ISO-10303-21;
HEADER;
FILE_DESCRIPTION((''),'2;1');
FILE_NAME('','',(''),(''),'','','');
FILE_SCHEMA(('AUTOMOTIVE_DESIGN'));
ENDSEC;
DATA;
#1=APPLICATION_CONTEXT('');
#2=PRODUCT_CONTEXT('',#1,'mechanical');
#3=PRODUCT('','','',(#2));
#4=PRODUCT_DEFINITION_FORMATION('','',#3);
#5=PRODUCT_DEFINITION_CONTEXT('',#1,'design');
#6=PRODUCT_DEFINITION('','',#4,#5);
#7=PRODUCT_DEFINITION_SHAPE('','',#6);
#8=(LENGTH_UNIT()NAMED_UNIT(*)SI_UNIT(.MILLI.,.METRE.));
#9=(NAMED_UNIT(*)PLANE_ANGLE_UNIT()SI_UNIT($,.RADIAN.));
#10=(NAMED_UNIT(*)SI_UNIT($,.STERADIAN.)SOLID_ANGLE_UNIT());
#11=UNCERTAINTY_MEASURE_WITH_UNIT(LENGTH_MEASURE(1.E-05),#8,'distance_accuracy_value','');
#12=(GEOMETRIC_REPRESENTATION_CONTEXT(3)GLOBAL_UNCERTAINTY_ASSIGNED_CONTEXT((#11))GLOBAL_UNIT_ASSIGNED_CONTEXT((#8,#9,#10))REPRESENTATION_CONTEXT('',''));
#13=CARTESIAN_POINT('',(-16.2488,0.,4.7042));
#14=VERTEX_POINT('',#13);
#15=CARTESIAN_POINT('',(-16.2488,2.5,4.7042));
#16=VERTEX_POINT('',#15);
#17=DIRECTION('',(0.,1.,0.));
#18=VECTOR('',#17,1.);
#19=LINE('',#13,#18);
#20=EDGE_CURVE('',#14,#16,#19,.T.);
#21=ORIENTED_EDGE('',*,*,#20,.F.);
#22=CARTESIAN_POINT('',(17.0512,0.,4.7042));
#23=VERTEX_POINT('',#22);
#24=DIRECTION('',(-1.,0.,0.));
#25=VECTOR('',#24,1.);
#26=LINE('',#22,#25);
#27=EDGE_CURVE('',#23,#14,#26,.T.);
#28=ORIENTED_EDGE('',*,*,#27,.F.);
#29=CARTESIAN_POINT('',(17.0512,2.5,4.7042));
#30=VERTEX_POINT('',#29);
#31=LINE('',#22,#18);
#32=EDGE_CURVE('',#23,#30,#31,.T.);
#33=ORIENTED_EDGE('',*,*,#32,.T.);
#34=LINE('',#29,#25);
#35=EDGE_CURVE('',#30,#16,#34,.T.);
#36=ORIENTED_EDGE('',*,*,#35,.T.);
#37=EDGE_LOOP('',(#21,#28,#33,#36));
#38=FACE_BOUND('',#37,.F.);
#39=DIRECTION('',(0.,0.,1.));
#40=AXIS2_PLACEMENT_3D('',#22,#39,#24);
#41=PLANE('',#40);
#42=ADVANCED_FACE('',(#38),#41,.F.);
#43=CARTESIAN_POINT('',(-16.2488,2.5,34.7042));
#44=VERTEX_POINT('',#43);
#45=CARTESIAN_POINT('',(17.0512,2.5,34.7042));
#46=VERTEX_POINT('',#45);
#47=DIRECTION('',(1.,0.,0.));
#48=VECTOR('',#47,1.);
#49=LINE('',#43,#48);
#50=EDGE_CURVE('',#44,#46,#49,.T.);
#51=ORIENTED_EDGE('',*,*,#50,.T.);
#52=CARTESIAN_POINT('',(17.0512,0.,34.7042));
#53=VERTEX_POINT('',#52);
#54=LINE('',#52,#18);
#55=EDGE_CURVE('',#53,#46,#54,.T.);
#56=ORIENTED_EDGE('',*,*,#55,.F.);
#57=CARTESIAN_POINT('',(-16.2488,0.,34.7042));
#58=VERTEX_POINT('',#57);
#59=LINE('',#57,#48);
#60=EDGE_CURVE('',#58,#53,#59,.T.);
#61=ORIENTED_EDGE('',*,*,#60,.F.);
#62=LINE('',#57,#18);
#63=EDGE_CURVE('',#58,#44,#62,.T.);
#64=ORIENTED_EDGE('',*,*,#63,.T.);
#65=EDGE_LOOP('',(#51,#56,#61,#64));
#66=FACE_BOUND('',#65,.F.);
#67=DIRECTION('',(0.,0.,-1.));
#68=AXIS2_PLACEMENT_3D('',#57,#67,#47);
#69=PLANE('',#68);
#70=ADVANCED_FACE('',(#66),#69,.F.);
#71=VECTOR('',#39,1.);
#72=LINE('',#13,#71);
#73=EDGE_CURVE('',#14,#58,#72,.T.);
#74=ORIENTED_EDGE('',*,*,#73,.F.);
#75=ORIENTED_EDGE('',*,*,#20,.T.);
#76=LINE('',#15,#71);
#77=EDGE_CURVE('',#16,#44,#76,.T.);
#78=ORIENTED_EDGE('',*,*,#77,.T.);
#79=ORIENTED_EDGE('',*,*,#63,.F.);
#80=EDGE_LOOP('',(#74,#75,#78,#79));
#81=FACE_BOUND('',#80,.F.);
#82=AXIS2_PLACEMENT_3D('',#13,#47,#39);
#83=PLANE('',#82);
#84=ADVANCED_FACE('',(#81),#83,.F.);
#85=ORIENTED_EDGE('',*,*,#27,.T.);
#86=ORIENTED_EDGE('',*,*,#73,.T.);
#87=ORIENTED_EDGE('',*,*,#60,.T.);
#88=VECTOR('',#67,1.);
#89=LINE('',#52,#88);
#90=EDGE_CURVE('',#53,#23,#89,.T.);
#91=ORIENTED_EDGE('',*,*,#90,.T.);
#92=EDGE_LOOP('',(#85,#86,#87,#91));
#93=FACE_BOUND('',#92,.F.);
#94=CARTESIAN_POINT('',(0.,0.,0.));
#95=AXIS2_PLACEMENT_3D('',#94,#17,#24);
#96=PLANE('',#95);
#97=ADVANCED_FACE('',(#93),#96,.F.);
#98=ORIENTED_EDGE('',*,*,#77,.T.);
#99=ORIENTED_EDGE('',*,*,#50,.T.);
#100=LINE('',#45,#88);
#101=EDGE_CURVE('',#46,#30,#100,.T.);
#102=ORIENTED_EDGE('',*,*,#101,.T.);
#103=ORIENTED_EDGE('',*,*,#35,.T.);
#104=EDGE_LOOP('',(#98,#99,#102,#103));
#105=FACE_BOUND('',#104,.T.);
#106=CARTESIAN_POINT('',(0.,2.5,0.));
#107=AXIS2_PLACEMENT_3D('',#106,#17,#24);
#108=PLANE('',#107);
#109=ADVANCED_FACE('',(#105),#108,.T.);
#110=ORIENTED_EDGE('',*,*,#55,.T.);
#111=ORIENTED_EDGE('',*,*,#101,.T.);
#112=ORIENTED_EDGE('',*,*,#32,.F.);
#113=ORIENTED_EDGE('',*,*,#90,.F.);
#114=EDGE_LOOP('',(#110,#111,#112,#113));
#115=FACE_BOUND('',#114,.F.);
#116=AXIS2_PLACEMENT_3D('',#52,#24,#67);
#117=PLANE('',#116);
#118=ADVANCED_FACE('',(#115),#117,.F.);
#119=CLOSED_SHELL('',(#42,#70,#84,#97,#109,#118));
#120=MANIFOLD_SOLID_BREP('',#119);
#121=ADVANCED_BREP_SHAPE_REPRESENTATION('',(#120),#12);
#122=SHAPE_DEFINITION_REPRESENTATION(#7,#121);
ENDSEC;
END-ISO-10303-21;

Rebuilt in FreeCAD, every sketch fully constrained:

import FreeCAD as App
import Part
import Sketcher
Q = App.Units.Quantity


def add_polygon(sketch, points):
    """Adds a closed chain of lines whose ends are joined by coincident constraints."""
    first, n = sketch.GeometryCount, len(points)
    for a, b in zip(points, points[1:] + points[:1]):
        sketch.addGeometry(Part.LineSegment(App.Vector(*a, 0), App.Vector(*b, 0)), False)
    for i in range(n):
        sketch.addConstraint(Sketcher.Constraint("Coincident", first + i, 2, first + (i + 1) % n, 1))

doc = App.newDocument("Part")
body = doc.addObject("PartDesign::Body", "Body")

# Sketch on XZ plane
sketch1 = body.newObject("Sketcher::SketchObject", "Sketch")
sketch1.AttachmentSupport = (doc.getObject("XZ_Plane"), [""])
sketch1.MapMode = "FlatFace"
add_polygon(sketch1, [(-16.2488, 4.7042), (-16.2488, 34.7042), (17.0512, 34.7042), (17.0512, 4.7042)])  # lines 0-3
sketch1.addConstraint(Sketcher.Constraint("Vertical", 0))
sketch1.addConstraint(Sketcher.Constraint("Horizontal", 1))
sketch1.addConstraint(Sketcher.Constraint("Vertical", 2))
sketch1.addConstraint(Sketcher.Constraint("Horizontal", 3))
sketch1.addConstraint(Sketcher.Constraint("DistanceY", 0, 1, 0, 2, Q("30 mm")))
sketch1.addConstraint(Sketcher.Constraint("DistanceX", 1, 1, 1, 2, Q("33.3 mm")))
sketch1.addConstraint(Sketcher.Constraint("DistanceX", 0, 2, -1, 1, Q("16.2488 mm")))
sketch1.addConstraint(Sketcher.Constraint("DistanceY", -1, 1, 0, 2, Q("34.7042 mm")))
pad1 = body.newObject("PartDesign::Pad", "Pad")
pad1.Profile = sketch1
pad1.Length = 2.5
pad1.Reversed = True

doc.recompute()
